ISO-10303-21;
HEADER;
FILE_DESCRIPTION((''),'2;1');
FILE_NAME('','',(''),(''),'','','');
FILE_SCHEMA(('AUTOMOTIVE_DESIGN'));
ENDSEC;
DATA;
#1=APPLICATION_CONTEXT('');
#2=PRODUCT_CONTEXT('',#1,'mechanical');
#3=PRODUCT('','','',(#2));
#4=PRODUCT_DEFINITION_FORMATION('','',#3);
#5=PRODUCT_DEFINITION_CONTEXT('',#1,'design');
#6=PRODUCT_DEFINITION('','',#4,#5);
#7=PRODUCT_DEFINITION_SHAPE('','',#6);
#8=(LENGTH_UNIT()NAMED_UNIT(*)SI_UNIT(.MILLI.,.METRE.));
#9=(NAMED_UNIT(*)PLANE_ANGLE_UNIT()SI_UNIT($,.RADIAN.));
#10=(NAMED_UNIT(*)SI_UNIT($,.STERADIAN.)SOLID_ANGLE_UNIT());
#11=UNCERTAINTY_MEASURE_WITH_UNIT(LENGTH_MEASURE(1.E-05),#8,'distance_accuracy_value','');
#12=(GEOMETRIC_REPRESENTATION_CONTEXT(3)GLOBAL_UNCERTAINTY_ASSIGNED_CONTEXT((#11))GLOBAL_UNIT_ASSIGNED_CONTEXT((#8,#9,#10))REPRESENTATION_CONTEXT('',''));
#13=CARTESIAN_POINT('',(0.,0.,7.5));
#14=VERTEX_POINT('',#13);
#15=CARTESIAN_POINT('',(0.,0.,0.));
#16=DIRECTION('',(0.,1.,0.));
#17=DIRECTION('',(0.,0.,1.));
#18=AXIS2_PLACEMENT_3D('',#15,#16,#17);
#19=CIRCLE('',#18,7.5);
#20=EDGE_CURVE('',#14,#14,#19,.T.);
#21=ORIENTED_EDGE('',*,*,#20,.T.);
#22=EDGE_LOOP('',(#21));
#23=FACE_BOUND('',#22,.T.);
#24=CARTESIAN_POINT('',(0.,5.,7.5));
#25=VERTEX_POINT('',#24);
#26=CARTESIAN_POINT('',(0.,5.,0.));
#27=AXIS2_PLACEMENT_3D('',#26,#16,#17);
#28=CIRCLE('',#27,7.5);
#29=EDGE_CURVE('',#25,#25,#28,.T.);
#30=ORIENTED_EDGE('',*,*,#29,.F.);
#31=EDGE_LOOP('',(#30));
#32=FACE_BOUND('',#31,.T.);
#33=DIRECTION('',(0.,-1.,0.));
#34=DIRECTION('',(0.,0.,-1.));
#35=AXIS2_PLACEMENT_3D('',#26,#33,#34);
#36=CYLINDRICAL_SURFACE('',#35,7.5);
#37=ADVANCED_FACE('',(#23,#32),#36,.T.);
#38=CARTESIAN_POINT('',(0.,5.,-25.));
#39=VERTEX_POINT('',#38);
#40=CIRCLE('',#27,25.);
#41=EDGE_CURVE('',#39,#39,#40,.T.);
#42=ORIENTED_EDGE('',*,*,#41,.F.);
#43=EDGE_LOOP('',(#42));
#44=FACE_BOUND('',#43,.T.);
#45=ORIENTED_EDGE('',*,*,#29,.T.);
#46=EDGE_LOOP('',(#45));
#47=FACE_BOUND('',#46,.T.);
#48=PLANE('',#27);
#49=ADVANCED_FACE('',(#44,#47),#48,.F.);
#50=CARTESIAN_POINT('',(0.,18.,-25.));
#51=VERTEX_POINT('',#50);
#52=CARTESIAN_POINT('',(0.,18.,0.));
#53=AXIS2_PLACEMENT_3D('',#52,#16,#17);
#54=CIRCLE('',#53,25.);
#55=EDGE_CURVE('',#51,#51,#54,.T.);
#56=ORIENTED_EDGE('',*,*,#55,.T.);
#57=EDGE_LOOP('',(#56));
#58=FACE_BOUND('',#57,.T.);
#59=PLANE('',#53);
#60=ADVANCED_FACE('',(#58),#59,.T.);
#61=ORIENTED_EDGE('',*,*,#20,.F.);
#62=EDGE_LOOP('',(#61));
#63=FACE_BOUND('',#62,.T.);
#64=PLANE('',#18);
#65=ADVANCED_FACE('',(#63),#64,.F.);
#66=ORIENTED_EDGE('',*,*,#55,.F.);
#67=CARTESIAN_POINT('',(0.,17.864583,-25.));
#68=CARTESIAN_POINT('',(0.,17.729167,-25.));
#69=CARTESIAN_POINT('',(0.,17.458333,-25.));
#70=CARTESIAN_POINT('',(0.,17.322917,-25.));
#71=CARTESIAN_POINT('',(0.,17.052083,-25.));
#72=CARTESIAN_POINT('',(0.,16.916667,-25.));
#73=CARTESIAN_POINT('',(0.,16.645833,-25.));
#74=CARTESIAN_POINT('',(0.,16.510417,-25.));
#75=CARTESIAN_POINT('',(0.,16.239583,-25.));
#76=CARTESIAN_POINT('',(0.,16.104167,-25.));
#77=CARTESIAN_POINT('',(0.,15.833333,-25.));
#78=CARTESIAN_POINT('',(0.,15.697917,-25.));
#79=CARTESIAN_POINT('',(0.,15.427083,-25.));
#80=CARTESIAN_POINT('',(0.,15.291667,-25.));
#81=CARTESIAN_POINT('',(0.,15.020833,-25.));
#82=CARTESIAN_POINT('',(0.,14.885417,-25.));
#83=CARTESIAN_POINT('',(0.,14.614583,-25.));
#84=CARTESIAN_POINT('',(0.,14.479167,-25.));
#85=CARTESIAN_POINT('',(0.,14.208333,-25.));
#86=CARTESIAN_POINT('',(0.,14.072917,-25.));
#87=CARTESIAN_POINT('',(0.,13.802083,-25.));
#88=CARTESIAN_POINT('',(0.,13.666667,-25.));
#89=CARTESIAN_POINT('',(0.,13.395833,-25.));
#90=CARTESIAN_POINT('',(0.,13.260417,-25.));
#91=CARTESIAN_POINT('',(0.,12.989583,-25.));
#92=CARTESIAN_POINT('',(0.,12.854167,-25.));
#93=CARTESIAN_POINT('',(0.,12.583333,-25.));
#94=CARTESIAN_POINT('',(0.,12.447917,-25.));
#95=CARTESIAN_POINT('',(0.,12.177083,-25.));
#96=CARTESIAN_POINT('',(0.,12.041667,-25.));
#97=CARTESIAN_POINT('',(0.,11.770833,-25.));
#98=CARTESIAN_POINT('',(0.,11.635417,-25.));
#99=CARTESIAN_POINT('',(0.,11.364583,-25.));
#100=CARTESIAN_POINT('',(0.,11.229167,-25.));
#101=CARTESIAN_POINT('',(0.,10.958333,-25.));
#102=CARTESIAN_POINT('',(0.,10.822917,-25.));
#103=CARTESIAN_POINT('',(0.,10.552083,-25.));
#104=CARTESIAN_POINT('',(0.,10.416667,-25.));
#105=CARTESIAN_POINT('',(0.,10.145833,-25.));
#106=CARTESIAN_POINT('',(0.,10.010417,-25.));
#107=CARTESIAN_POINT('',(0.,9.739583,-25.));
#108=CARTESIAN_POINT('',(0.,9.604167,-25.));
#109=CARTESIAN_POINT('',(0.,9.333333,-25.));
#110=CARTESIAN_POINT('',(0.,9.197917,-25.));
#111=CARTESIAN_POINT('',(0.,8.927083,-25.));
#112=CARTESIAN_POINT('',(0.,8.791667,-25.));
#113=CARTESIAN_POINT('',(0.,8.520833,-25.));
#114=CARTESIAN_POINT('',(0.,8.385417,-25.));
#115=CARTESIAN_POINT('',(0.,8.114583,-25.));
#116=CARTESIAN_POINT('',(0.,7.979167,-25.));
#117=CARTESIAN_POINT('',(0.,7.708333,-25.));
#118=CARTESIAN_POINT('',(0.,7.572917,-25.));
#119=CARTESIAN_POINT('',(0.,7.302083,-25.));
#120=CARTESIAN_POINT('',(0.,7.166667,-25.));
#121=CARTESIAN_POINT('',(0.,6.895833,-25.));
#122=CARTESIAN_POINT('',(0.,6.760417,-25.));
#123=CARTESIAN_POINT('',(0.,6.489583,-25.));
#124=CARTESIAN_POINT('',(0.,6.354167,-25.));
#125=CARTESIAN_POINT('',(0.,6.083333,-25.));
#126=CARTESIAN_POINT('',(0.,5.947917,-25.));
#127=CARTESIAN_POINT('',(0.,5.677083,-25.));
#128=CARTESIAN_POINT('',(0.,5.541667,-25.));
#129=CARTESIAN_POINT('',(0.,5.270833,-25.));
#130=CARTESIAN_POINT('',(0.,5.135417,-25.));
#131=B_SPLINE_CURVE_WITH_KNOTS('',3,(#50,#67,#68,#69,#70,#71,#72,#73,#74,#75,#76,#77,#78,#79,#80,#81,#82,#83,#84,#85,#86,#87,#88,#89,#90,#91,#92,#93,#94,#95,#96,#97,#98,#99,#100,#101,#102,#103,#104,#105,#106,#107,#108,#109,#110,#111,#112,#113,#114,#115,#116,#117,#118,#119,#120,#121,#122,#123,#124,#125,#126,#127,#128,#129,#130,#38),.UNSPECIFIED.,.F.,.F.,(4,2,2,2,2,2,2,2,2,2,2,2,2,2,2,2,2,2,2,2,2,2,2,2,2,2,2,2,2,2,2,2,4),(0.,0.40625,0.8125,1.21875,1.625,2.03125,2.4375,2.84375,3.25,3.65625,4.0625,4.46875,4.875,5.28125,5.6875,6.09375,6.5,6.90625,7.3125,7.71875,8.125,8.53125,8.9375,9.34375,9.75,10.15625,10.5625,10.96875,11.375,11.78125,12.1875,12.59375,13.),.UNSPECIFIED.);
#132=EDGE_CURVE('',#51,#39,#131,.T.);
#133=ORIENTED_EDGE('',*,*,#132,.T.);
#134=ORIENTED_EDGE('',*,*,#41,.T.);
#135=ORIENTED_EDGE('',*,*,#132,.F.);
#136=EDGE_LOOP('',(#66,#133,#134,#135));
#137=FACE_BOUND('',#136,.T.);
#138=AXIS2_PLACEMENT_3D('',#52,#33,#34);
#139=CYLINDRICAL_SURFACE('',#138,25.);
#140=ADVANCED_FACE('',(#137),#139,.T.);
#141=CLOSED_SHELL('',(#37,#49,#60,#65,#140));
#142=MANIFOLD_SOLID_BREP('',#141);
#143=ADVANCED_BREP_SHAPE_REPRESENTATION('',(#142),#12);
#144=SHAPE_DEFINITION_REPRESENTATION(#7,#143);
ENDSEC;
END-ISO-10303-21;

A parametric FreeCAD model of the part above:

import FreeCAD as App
import Part
import Sketcher

V = App.Vector

doc = App.newDocument("Part")
body = doc.addObject("PartDesign::Body", "Body")

sketch1 = body.newObject("Sketcher::SketchObject", "Sketch")
sketch1.AttachmentSupport = (doc.getObject("XZ_Plane"), [""])
sketch1.MapMode = "FlatFace"
sketch1.addGeometry(Part.Circle(V(0, 0, 0), V(0, 0, 1), 8), False)
sketch1.addConstraint(Sketcher.Constraint("Coincident", 0, 3, -1, 1))
sketch1.addConstraint(Sketcher.Constraint("Diameter", 0, 15.0))
pad1 = body.newObject("PartDesign::Pad", "Pad")
pad1.Profile = sketch1
pad1.Length = 5
pad1.Reversed = True

sketch2 = body.newObject("Sketcher::SketchObject", "Sketch001")
sketch2.AttachmentSupport = (doc.getObject("XZ_Plane"), [""])
sketch2.MapMode = "FlatFace"
sketch2.AttachmentOffset = App.Placement(V(0, 0, -5), App.Rotation())
sketch2.addGeometry(Part.Circle(V(0, 0, 0), V(0, 0, 1), 25), False)
sketch2.addConstraint(Sketcher.Constraint("Coincident", 0, 3, -1, 1))
sketch2.addConstraint(Sketcher.Constraint("Diameter", 0, 50.0))
pad2 = body.newObject("PartDesign::Pad", "Pad001")
pad2.Profile = sketch2
pad2.Length = 13
pad2.Reversed = True

doc.recompute()
